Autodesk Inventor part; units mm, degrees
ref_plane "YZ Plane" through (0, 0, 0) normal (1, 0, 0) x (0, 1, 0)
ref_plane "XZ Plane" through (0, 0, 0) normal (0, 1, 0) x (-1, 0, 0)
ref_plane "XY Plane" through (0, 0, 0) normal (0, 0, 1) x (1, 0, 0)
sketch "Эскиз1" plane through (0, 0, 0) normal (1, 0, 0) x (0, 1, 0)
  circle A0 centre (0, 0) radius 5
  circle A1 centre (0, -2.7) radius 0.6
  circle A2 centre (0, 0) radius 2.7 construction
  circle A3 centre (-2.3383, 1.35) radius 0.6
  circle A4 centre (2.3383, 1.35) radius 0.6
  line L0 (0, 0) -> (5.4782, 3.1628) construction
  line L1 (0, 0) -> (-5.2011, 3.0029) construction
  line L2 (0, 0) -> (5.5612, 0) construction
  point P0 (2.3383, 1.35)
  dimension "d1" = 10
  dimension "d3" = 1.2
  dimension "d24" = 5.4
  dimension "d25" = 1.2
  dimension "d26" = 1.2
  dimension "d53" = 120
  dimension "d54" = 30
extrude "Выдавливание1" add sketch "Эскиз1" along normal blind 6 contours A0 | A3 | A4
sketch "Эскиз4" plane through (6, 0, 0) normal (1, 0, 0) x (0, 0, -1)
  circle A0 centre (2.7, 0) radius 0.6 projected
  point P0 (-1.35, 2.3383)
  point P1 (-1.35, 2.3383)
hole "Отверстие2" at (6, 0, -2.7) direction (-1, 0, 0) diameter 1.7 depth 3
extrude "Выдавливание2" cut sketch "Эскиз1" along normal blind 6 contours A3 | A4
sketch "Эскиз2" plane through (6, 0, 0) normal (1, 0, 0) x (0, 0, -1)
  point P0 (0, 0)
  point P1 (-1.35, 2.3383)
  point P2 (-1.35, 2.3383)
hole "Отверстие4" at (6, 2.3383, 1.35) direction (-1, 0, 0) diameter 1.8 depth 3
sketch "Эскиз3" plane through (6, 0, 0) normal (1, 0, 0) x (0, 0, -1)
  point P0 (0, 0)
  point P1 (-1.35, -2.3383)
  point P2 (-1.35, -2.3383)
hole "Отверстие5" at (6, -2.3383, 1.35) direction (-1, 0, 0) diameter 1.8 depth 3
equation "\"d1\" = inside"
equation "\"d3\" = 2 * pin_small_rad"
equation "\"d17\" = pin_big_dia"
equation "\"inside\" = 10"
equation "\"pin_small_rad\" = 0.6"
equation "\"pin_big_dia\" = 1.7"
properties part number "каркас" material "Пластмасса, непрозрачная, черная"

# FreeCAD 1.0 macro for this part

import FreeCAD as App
import Part
import Sketcher
Q = App.Units.Quantity

doc = App.newDocument("Part")
params = doc.addObject("Spreadsheet::Sheet", "Params")
for row, (alias, value) in enumerate([
    ("sketch1_diameter", "10 mm"),
    ("sketch1_diameter2", "1.2 mm"),
    ("pad1_length", "6 mm"),
    ("sketch2_diameter", "1.7 mm"),
    ("hole_diameter", "1.7 mm"),
    ("hole_depth", "3 mm"),
    ("sketch3_diameter", "1.2 mm"),
    ("pocket1_length", "6 mm"),
    ("sketch4_diameter", "1.8 mm"),
    ("hole2_diameter", "1.8 mm"),
    ("hole2_depth", "3 mm"),
    ("sketch5_diameter", "1.8 mm"),
    ("hole3_diameter", "1.8 mm"),
    ("hole3_depth", "3 mm"),
], start=1):
    params.set(f"A{row}", alias)
    params.set(f"B{row}", "=" + value)
    params.setAlias(f"B{row}", alias)

body = doc.addObject("PartDesign::Body", "Body")

sketch1 = body.newObject("Sketcher::SketchObject", "Sketch")
sketch1.AttachmentSupport = (doc.getObject("YZ_Plane"), [""])
sketch1.MapMode = "FlatFace"
sketch1.addGeometry([
    Part.Circle(App.Vector(0, 0, 0), App.Vector(0, 0, 1), 5),
    Part.Circle(App.Vector(0, -2.7, 0), App.Vector(0, 0, 1), 0.6),
], False)
sketch1.addConstraint([
    Sketcher.Constraint("Coincident", 0, 3, -1, 1),
    Sketcher.Constraint("PointOnObject", 1, 3, -2),
    Sketcher.Constraint("Diameter", 0, Q("10 mm")),
    Sketcher.Constraint("Diameter", 1, Q("1.2 mm")),
    Sketcher.Constraint("DistanceY", 1, 3, -1, 1, Q("2.7 mm")),
])
sketch1.setExpression("Constraints[2]", "Params.sketch1_diameter")
sketch1.setExpression("Constraints[3]", "Params.sketch1_diameter2")
pad1 = body.newObject("PartDesign::Pad", "Pad")
pad1.Profile = sketch1
pad1.setExpression("Length", "Params.pad1_length")

sketch2 = body.newObject("Sketcher::SketchObject", "Sketch001")
sketch2.AttachmentSupport = (doc.getObject("YZ_Plane"), [""])
sketch2.MapMode = "FlatFace"
sketch2.AttachmentOffset = App.Placement(App.Vector(0, 0, 6), App.Rotation())
sketch2.addGeometry(Part.Circle(App.Vector(0, -2.7, 0), App.Vector(0, 0, 1), 0.8), False)
sketch2.addConstraint([
    Sketcher.Constraint("PointOnObject", 0, 3, -2),
    Sketcher.Constraint("Diameter", 0, Q("1.7 mm")),
    Sketcher.Constraint("DistanceY", 0, 3, -1, 1, Q("2.7 mm")),
])
sketch2.setExpression("Constraints[1]", "Params.sketch2_diameter")
doc.recompute()
hole = body.newObject("PartDesign::Hole", "Hole")
hole.Profile = sketch2
hole.ThreadType = "None"
hole.setExpression("Diameter", "Params.hole_diameter")
hole.DepthType = "Dimension"
hole.setExpression("Depth", "Params.hole_depth")
hole.DrillPoint = "Flat"

sketch3 = body.newObject("Sketcher::SketchObject", "Sketch002")
sketch3.AttachmentSupport = (doc.getObject("YZ_Plane"), [""])
sketch3.MapMode = "FlatFace"
sketch3.addGeometry([
    Part.Circle(App.Vector(-2.3, 1.4, 0), App.Vector(0, 0, 1), 0.6),
    Part.Circle(App.Vector(2.3, 1.4, 0), App.Vector(0, 0, 1), 0.6),
], False)
sketch3.addConstraint([
    Sketcher.Constraint("Equal", 0, 1),
    Sketcher.Constraint("Symmetric", 0, 3, 1, 3, -2),
    Sketcher.Constraint("Diameter", 0, Q("1.2 mm")),
    Sketcher.Constraint("DistanceY", -1, 1, 0, 3, Q("1.35 mm")),
    Sketcher.Constraint("DistanceX", 0, 3, -1, 1, Q("2.3383 mm")),
])
sketch3.setExpression("Constraints[2]", "Params.sketch3_diameter")
pocket1 = body.newObject("PartDesign::Pocket", "Pocket")
pocket1.Profile = sketch3
pocket1.setExpression("Length", "Params.pocket1_length")
pocket1.Reversed = True

sketch4 = body.newObject("Sketcher::SketchObject", "Sketch003")
sketch4.AttachmentSupport = (doc.getObject("YZ_Plane"), [""])
sketch4.MapMode = "FlatFace"
sketch4.AttachmentOffset = App.Placement(App.Vector(0, 0, 6), App.Rotation())
sketch4.addGeometry(Part.Circle(App.Vector(2.3, 1.4, 0), App.Vector(0, 0, 1), 0.9), False)
sketch4.addConstraint([
    Sketcher.Constraint("Diameter", 0, Q("1.8 mm")),
    Sketcher.Constraint("DistanceY", -1, 1, 0, 3, Q("1.35 mm")),
    Sketcher.Constraint("DistanceX", -1, 1, 0, 3, Q("2.3383 mm")),
])
sketch4.setExpression("Constraints[0]", "Params.sketch4_diameter")
doc.recompute()
hole2 = body.newObject("PartDesign::Hole", "Hole001")
hole2.Profile = sketch4
hole2.ThreadType = "None"
hole2.setExpression("Diameter", "Params.hole2_diameter")
hole2.DepthType = "Dimension"
hole2.setExpression("Depth", "Params.hole2_depth")
hole2.DrillPoint = "Flat"

sketch5 = body.newObject("Sketcher::SketchObject", "Sketch004")
sketch5.AttachmentSupport = (doc.getObject("YZ_Plane"), [""])
sketch5.MapMode = "FlatFace"
sketch5.AttachmentOffset = App.Placement(App.Vector(0, 0, 6), App.Rotation())
sketch5.addGeometry(Part.Circle(App.Vector(-2.3, 1.4, 0), App.Vector(0, 0, 1), 0.9), False)
sketch5.addConstraint([
    Sketcher.Constraint("Diameter", 0, Q("1.8 mm")),
    Sketcher.Constraint("DistanceY", -1, 1, 0, 3, Q("1.35 mm")),
    Sketcher.Constraint("DistanceX", 0, 3, -1, 1, Q("2.3383 mm")),
])
sketch5.setExpression("Constraints[0]", "Params.sketch5_diameter")
doc.recompute()
hole3 = body.newObject("PartDesign::Hole", "Hole002")
hole3.Profile = sketch5
hole3.ThreadType = "None"
hole3.setExpression("Diameter", "Params.hole3_diameter")
hole3.DepthType = "Dimension"
hole3.setExpression("Depth", "Params.hole3_depth")
hole3.DrillPoint = "Flat"

doc.recompute()
